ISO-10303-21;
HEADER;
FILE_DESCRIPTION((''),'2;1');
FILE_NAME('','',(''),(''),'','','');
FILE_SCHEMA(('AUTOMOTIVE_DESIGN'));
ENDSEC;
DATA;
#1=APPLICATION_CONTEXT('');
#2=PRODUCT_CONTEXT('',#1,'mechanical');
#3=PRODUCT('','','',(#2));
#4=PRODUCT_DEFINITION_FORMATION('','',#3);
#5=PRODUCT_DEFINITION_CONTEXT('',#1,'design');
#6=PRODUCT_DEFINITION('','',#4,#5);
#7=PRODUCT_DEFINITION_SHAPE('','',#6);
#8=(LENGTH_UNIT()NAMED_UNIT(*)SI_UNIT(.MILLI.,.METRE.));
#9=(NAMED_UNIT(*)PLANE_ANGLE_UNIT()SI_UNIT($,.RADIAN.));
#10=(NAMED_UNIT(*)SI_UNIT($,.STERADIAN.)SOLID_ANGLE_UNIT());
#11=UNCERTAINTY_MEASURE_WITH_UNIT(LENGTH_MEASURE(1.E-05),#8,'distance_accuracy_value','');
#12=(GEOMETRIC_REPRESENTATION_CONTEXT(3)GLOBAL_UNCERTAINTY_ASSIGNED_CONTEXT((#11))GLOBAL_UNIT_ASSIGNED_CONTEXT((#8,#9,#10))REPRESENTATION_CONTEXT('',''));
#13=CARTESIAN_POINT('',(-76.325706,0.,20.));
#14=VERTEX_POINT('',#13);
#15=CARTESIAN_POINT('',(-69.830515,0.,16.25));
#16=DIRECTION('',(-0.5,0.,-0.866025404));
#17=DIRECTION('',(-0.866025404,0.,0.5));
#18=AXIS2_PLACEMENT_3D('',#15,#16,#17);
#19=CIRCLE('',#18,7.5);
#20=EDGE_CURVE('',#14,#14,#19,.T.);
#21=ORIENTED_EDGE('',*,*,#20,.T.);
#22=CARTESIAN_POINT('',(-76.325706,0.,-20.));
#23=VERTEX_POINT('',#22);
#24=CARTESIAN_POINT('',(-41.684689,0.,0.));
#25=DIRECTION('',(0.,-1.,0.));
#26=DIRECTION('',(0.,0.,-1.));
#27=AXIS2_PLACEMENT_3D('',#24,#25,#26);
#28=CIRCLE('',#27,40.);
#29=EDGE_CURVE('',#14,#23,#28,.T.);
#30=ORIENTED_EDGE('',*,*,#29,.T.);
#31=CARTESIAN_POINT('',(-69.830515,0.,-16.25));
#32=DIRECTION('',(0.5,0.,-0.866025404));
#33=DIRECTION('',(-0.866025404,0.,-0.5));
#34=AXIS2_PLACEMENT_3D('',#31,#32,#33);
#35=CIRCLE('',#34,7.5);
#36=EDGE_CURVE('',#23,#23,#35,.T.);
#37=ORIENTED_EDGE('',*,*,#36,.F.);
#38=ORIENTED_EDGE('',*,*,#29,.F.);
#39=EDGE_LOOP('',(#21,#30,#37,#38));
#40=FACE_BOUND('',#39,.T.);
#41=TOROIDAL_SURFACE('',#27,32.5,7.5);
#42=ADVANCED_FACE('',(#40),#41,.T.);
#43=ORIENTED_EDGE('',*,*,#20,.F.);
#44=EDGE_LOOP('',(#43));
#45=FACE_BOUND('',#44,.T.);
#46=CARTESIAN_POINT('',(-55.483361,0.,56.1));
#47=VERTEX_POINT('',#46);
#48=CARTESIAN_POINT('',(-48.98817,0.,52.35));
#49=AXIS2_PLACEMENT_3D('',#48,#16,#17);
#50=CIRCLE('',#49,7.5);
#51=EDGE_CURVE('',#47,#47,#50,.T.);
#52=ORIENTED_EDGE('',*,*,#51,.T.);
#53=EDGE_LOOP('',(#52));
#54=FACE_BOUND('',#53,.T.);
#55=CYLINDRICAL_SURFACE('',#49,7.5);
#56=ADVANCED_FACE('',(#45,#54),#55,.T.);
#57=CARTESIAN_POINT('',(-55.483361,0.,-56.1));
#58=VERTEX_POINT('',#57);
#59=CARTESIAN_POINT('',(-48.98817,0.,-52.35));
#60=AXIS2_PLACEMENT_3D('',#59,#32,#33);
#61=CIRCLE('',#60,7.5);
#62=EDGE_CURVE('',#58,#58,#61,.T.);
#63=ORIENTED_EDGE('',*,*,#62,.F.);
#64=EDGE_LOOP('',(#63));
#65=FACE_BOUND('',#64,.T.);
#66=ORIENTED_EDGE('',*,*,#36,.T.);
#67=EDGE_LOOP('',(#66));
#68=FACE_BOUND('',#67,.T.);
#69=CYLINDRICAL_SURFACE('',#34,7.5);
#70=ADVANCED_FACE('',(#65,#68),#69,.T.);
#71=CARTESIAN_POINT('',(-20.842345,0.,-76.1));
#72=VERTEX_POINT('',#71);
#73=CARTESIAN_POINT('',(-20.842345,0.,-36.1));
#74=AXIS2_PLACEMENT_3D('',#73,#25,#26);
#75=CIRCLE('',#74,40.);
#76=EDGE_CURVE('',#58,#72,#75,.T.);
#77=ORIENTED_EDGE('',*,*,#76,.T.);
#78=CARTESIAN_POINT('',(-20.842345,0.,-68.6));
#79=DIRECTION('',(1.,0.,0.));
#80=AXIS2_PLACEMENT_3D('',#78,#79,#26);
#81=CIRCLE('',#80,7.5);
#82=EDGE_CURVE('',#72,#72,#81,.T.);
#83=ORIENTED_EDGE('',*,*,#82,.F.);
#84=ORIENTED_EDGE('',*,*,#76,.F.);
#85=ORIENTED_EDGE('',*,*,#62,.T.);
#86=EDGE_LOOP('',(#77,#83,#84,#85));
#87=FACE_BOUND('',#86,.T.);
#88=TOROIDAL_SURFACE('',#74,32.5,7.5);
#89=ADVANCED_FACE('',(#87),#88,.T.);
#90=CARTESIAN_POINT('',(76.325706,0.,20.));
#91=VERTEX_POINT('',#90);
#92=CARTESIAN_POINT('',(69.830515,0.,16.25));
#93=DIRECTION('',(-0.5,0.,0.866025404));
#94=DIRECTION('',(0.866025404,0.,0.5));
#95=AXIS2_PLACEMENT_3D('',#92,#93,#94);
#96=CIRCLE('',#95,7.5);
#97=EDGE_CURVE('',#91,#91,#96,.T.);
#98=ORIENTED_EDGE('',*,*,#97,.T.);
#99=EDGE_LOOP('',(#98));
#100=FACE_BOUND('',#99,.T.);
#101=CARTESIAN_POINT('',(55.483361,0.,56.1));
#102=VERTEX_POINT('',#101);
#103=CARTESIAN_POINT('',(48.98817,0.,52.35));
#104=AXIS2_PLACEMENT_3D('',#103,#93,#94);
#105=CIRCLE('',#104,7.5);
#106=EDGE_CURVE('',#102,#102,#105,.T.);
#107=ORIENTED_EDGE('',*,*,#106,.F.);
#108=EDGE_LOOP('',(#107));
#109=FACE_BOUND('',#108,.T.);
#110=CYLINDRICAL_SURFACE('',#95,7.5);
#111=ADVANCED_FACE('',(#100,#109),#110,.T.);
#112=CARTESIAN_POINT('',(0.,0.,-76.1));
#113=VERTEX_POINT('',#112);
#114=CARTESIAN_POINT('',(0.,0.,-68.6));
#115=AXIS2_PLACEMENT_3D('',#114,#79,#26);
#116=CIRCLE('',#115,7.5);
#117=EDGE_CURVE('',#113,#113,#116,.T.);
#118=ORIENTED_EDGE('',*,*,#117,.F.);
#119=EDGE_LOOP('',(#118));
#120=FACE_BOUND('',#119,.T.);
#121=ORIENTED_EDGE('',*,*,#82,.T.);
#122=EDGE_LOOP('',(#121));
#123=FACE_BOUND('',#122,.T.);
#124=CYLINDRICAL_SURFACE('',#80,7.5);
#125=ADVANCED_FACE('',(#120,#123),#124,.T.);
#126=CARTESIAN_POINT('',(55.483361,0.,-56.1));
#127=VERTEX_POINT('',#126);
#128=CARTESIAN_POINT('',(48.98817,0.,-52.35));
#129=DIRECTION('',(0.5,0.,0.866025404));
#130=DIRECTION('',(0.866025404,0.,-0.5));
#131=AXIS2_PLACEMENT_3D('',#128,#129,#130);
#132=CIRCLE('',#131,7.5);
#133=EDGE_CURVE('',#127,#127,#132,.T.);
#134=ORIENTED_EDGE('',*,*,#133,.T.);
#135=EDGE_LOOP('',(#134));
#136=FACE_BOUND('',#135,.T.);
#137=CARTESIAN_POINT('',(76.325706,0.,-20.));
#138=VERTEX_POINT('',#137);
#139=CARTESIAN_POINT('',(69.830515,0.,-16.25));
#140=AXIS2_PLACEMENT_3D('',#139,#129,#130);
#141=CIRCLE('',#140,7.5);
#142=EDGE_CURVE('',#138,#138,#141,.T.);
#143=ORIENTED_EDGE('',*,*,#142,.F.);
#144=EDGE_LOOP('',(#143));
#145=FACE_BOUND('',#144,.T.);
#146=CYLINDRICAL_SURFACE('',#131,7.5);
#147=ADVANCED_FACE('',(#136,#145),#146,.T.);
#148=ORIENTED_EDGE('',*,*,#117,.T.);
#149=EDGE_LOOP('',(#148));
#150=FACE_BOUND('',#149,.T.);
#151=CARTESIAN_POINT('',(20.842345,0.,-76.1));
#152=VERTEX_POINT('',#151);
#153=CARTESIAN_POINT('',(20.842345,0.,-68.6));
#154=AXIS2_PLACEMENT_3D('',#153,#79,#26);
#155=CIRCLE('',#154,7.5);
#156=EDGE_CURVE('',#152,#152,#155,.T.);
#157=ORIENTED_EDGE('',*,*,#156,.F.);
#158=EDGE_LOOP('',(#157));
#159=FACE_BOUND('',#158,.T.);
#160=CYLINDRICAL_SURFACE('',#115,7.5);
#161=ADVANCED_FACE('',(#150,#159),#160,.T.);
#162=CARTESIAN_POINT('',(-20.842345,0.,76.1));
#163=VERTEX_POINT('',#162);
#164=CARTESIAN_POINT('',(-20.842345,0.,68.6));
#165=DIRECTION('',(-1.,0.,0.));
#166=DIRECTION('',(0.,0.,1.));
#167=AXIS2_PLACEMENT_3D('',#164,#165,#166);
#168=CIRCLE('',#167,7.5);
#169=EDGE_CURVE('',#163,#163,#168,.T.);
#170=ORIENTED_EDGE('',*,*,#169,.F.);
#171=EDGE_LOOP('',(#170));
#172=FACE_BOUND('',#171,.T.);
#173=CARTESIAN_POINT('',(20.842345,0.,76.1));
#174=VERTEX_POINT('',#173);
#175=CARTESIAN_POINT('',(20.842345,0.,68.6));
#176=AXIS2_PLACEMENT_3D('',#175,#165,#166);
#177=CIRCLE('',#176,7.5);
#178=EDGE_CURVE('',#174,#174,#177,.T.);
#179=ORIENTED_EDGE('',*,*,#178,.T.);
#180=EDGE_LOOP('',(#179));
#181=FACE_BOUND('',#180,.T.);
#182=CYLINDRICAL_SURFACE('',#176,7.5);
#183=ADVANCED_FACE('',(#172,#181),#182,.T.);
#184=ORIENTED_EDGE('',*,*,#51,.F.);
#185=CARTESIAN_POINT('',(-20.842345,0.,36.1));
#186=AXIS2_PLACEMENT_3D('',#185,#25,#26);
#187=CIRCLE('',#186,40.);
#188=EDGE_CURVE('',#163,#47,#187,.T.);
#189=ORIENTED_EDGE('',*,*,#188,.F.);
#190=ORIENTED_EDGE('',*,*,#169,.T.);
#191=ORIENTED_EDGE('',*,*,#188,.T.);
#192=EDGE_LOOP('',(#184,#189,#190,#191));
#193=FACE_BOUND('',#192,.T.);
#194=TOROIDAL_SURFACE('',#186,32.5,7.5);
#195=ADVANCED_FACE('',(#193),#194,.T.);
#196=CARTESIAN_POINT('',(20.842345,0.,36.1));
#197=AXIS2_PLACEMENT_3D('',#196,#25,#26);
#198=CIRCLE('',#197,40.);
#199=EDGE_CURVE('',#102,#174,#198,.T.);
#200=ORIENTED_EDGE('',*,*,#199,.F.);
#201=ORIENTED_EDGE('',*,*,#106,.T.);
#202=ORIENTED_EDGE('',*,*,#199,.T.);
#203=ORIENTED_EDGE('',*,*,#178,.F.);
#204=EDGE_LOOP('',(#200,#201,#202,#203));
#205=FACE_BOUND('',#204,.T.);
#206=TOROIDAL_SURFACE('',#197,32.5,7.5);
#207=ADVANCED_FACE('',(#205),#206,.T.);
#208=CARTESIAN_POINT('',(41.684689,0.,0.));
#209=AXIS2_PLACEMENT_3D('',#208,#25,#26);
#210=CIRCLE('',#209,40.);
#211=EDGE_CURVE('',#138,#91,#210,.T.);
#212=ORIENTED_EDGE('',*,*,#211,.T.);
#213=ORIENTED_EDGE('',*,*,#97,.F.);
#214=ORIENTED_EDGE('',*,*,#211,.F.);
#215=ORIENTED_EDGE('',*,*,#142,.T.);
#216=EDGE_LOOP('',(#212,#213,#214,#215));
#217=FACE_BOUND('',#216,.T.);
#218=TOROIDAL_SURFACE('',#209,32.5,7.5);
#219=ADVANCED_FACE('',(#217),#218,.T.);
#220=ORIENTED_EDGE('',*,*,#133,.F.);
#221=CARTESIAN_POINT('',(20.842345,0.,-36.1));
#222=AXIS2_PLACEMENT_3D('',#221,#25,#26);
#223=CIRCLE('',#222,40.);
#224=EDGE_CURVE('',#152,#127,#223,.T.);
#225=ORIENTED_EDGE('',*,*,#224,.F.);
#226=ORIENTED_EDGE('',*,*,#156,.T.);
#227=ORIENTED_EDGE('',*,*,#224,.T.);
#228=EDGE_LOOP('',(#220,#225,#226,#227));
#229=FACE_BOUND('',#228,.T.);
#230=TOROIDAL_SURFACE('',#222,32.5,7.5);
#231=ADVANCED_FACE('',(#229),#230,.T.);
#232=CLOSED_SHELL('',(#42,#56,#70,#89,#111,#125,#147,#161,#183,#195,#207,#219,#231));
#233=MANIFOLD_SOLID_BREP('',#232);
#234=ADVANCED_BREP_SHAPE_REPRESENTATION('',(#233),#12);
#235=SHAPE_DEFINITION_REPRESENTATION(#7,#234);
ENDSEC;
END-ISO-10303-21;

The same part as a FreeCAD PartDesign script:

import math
import FreeCAD as App
import Part
import Sketcher
Q = App.Units.Quantity

doc = App.newDocument("Part")
params = doc.addObject("Spreadsheet::Sheet", "Params")
for row, (alias, value) in enumerate([
    ("sketch1_diameter", "15 mm"),
    ("sketch2_radius", "25 mm"),
], start=1):
    params.set(f"A{row}", alias)
    params.set(f"B{row}", "=" + value)
    params.setAlias(f"B{row}", alias)

body = doc.addObject("PartDesign::Body", "Body")

sketch1 = body.newObject("Sketcher::SketchObject", "Sketch")
sketch1.AttachmentSupport = (doc.getObject("YZ_Plane"), [""])
sketch1.MapMode = "FlatFace"
sketch1.addGeometry(Part.Circle(App.Vector(0, -68.6, 0), App.Vector(0, 0, 1), 7.5), False)
sketch1.addConstraint([
    Sketcher.Constraint("PointOnObject", 0, 3, -2),
    Sketcher.Constraint("Diameter", 0, 15.0),
    Sketcher.Constraint("DistanceY", 0, 3, -1, 1, 68.6),
])
sketch1.setExpression("Constraints[1]", "Params.sketch1_diameter")

sketch2 = body.newObject("Sketcher::SketchObject", "Sketch001")
sketch2.AttachmentSupport = (doc.getObject("XZ_Plane"), [""])
sketch2.MapMode = "FlatFace"
sketch2.addGeometry([
    Part.LineSegment(App.Vector(63.335325, -12.5, 0), App.Vector(42.49298, -48.6, 0)),
    Part.ArcOfCircle(Part.Circle(App.Vector(20.842345, -36.1, 0), App.Vector(0, 0, 1), 25), math.radians(-90), math.radians(-30)),
    Part.LineSegment(App.Vector(20.842345, -61.1, 0), App.Vector(-20.842345, -61.1, 0)),
    Part.ArcOfCircle(Part.Circle(App.Vector(-20.842345, -36.1, 0), App.Vector(0, 0, 1), 25), math.radians(-150), math.radians(-90)),
    Part.LineSegment(App.Vector(-42.49298, -48.6, 0), App.Vector(-63.335325, -12.5, 0)),
    Part.ArcOfCircle(Part.Circle(App.Vector(-41.684689, 0, 0), App.Vector(0, 0, 1), 25), math.radians(150), math.radians(210)),
    Part.LineSegment(App.Vector(-63.335325, 12.5, 0), App.Vector(-42.49298, 48.6, 0)),
    Part.ArcOfCircle(Part.Circle(App.Vector(-20.842345, 36.1, 0), App.Vector(0, 0, 1), 25), math.radians(90), math.radians(150)),
    Part.LineSegment(App.Vector(-20.842345, 61.1, 0), App.Vector(20.842345, 61.1, 0)),
    Part.ArcOfCircle(Part.Circle(App.Vector(20.842345, 36.1, 0), App.Vector(0, 0, 1), 25), math.radians(30), math.radians(90)),
    Part.LineSegment(App.Vector(42.49298, 48.6, 0), App.Vector(63.335325, 12.5, 0)),
    Part.ArcOfCircle(Part.Circle(App.Vector(41.684689, 0, 0), App.Vector(0, 0, 1), 25), math.radians(-30), math.radians(30)),
], False)
sketch2.addConstraint([
    Sketcher.Constraint("Tangent", 0, 2, 1, 2),
    Sketcher.Constraint("Tangent", 1, 1, 2, 1),
    Sketcher.Constraint("Tangent", 2, 2, 3, 2),
    Sketcher.Constraint("Tangent", 3, 1, 4, 1),
    Sketcher.Constraint("Tangent", 4, 2, 5, 2),
    Sketcher.Constraint("Tangent", 5, 1, 6, 1),
    Sketcher.Constraint("Tangent", 6, 2, 7, 2),
    Sketcher.Constraint("Tangent", 7, 1, 8, 1),
    Sketcher.Constraint("Tangent", 8, 2, 9, 2),
    Sketcher.Constraint("Tangent", 9, 1, 10, 1),
    Sketcher.Constraint("Tangent", 10, 2, 11, 2),
    Sketcher.Constraint("Tangent", 11, 1, 0, 1),
    Sketcher.Constraint("Horizontal", 2),
    Sketcher.Constraint("Horizontal", 8),
    Sketcher.Constraint("Equal", 1, 3),
    Sketcher.Constraint("Equal", 3, 5),
    Sketcher.Constraint("Equal", 5, 7),
    Sketcher.Constraint("Equal", 7, 9),
    Sketcher.Constraint("Equal", 9, 11),
    Sketcher.Constraint("Symmetric", 1, 3, 7, 3, -1, 1),
    Sketcher.Constraint("Symmetric", 5, 3, 11, 3, -1, 1),
    Sketcher.Constraint("Symmetric", 0, 2, 3, 1, -2),
    Sketcher.Constraint("Parallel", 4, 10),
    Sketcher.Constraint("Radius", 1, 25.0),
    Sketcher.Constraint("Angle", 0, Q("-120 deg")),
    Sketcher.Constraint("DistanceY", 1, 3, -1, 1, 36.1),
    Sketcher.Constraint("DistanceX", 2, 2, 2, 1, 41.684689),
])
sketch2.setExpression("Constraints[23]", "Params.sketch2_radius")
doc.recompute()

additivepipe = body.newObject("PartDesign::AdditivePipe", "AdditivePipe")
additivepipe.Profile = sketch1
additivepipe.Spine = (sketch2, ["Edge1", "Edge2", "Edge3", "Edge4", "Edge5", "Edge6", "Edge7", "Edge8", "Edge9", "Edge10", "Edge11", "Edge12"])

doc.recompute()
